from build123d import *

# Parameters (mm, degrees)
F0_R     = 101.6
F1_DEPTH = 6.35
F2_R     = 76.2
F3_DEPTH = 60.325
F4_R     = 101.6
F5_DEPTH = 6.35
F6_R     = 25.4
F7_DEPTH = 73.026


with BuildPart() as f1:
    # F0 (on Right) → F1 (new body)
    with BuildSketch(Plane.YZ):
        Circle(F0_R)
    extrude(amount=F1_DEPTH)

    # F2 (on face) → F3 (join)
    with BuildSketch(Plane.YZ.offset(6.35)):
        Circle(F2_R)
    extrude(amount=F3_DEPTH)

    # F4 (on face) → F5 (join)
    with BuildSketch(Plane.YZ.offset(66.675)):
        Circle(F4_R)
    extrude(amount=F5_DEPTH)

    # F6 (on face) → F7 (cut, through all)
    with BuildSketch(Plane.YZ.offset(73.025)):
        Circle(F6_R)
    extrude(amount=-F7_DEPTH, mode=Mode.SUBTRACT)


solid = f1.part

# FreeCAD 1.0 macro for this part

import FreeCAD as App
import Part
import Sketcher
Q = App.Units.Quantity

doc = App.newDocument("Part")
body = doc.addObject("PartDesign::Body", "Body")

sketch1 = doc.addObject("Sketcher::SketchObject", "Sketch")
body.addObject(sketch1)
sketch1.AttachmentSupport = (doc.YZ_Plane, [""])
sketch1.MapMode = "FlatFace"
sketch1.addGeometry(Part.Circle(App.Vector(0, 0, 0), App.Vector(0, 0, 1), 102), False)
sketch1.addConstraint([
    Sketcher.Constraint("Coincident", 0, 3, -1, 1),
    Sketcher.Constraint("Diameter", 0, Q("8 in")),
])
pad1 = doc.addObject("PartDesign::Pad", "Pad")
body.addObject(pad1)
pad1.Profile = sketch1
pad1.Length = Q("0.25 in")

sketch2 = doc.addObject("Sketcher::SketchObject", "Sketch001")
body.addObject(sketch2)
sketch2.AttachmentSupport = (doc.YZ_Plane, [""])
sketch2.MapMode = "FlatFace"
sketch2.AttachmentOffset = App.Placement(App.Vector(0, 0, 0.25 * 25.4), App.Rotation())
sketch2.addGeometry(Part.Circle(App.Vector(0, 0, 0), App.Vector(0, 0, 1), 76), False)
sketch2.addConstraint([
    Sketcher.Constraint("Coincident", 0, 3, -1, 1),
    Sketcher.Constraint("Diameter", 0, Q("6 in")),
])
pad2 = doc.addObject("PartDesign::Pad", "Pad001")
body.addObject(pad2)
pad2.Profile = sketch2
pad2.Length = Q("2.375 in")

sketch3 = doc.addObject("Sketcher::SketchObject", "Sketch002")
body.addObject(sketch3)
sketch3.AttachmentSupport = (doc.YZ_Plane, [""])
sketch3.MapMode = "FlatFace"
sketch3.AttachmentOffset = App.Placement(App.Vector(0, 0, 2.625 * 25.4), App.Rotation())
sketch3.addGeometry(Part.Circle(App.Vector(0, 0, 0), App.Vector(0, 0, 1), 102), False)
sketch3.addConstraint([
    Sketcher.Constraint("Coincident", 0, 3, -1, 1),
    Sketcher.Constraint("Diameter", 0, Q("8 in")),
])
pad3 = doc.addObject("PartDesign::Pad", "Pad002")
body.addObject(pad3)
pad3.Profile = sketch3
pad3.Length = Q("0.25 in")

sketch4 = doc.addObject("Sketcher::SketchObject", "Sketch003")
body.addObject(sketch4)
sketch4.AttachmentSupport = (doc.YZ_Plane, [""])
sketch4.MapMode = "FlatFace"
sketch4.AttachmentOffset = App.Placement(App.Vector(0, 0, 2.875 * 25.4), App.Rotation())
sketch4.addGeometry(Part.Circle(App.Vector(0, 0, 0), App.Vector(0, 0, 1), 25), False)
sketch4.addConstraint([
    Sketcher.Constraint("Coincident", 0, 3, -1, 1),
    Sketcher.Constraint("Diameter", 0, Q("2 in")),
])
pocket1 = doc.addObject("PartDesign::Pocket", "Pocket")
body.addObject(pocket1)
pocket1.Profile = sketch4
pocket1.Type = "ThroughAll"

doc.recompute()
